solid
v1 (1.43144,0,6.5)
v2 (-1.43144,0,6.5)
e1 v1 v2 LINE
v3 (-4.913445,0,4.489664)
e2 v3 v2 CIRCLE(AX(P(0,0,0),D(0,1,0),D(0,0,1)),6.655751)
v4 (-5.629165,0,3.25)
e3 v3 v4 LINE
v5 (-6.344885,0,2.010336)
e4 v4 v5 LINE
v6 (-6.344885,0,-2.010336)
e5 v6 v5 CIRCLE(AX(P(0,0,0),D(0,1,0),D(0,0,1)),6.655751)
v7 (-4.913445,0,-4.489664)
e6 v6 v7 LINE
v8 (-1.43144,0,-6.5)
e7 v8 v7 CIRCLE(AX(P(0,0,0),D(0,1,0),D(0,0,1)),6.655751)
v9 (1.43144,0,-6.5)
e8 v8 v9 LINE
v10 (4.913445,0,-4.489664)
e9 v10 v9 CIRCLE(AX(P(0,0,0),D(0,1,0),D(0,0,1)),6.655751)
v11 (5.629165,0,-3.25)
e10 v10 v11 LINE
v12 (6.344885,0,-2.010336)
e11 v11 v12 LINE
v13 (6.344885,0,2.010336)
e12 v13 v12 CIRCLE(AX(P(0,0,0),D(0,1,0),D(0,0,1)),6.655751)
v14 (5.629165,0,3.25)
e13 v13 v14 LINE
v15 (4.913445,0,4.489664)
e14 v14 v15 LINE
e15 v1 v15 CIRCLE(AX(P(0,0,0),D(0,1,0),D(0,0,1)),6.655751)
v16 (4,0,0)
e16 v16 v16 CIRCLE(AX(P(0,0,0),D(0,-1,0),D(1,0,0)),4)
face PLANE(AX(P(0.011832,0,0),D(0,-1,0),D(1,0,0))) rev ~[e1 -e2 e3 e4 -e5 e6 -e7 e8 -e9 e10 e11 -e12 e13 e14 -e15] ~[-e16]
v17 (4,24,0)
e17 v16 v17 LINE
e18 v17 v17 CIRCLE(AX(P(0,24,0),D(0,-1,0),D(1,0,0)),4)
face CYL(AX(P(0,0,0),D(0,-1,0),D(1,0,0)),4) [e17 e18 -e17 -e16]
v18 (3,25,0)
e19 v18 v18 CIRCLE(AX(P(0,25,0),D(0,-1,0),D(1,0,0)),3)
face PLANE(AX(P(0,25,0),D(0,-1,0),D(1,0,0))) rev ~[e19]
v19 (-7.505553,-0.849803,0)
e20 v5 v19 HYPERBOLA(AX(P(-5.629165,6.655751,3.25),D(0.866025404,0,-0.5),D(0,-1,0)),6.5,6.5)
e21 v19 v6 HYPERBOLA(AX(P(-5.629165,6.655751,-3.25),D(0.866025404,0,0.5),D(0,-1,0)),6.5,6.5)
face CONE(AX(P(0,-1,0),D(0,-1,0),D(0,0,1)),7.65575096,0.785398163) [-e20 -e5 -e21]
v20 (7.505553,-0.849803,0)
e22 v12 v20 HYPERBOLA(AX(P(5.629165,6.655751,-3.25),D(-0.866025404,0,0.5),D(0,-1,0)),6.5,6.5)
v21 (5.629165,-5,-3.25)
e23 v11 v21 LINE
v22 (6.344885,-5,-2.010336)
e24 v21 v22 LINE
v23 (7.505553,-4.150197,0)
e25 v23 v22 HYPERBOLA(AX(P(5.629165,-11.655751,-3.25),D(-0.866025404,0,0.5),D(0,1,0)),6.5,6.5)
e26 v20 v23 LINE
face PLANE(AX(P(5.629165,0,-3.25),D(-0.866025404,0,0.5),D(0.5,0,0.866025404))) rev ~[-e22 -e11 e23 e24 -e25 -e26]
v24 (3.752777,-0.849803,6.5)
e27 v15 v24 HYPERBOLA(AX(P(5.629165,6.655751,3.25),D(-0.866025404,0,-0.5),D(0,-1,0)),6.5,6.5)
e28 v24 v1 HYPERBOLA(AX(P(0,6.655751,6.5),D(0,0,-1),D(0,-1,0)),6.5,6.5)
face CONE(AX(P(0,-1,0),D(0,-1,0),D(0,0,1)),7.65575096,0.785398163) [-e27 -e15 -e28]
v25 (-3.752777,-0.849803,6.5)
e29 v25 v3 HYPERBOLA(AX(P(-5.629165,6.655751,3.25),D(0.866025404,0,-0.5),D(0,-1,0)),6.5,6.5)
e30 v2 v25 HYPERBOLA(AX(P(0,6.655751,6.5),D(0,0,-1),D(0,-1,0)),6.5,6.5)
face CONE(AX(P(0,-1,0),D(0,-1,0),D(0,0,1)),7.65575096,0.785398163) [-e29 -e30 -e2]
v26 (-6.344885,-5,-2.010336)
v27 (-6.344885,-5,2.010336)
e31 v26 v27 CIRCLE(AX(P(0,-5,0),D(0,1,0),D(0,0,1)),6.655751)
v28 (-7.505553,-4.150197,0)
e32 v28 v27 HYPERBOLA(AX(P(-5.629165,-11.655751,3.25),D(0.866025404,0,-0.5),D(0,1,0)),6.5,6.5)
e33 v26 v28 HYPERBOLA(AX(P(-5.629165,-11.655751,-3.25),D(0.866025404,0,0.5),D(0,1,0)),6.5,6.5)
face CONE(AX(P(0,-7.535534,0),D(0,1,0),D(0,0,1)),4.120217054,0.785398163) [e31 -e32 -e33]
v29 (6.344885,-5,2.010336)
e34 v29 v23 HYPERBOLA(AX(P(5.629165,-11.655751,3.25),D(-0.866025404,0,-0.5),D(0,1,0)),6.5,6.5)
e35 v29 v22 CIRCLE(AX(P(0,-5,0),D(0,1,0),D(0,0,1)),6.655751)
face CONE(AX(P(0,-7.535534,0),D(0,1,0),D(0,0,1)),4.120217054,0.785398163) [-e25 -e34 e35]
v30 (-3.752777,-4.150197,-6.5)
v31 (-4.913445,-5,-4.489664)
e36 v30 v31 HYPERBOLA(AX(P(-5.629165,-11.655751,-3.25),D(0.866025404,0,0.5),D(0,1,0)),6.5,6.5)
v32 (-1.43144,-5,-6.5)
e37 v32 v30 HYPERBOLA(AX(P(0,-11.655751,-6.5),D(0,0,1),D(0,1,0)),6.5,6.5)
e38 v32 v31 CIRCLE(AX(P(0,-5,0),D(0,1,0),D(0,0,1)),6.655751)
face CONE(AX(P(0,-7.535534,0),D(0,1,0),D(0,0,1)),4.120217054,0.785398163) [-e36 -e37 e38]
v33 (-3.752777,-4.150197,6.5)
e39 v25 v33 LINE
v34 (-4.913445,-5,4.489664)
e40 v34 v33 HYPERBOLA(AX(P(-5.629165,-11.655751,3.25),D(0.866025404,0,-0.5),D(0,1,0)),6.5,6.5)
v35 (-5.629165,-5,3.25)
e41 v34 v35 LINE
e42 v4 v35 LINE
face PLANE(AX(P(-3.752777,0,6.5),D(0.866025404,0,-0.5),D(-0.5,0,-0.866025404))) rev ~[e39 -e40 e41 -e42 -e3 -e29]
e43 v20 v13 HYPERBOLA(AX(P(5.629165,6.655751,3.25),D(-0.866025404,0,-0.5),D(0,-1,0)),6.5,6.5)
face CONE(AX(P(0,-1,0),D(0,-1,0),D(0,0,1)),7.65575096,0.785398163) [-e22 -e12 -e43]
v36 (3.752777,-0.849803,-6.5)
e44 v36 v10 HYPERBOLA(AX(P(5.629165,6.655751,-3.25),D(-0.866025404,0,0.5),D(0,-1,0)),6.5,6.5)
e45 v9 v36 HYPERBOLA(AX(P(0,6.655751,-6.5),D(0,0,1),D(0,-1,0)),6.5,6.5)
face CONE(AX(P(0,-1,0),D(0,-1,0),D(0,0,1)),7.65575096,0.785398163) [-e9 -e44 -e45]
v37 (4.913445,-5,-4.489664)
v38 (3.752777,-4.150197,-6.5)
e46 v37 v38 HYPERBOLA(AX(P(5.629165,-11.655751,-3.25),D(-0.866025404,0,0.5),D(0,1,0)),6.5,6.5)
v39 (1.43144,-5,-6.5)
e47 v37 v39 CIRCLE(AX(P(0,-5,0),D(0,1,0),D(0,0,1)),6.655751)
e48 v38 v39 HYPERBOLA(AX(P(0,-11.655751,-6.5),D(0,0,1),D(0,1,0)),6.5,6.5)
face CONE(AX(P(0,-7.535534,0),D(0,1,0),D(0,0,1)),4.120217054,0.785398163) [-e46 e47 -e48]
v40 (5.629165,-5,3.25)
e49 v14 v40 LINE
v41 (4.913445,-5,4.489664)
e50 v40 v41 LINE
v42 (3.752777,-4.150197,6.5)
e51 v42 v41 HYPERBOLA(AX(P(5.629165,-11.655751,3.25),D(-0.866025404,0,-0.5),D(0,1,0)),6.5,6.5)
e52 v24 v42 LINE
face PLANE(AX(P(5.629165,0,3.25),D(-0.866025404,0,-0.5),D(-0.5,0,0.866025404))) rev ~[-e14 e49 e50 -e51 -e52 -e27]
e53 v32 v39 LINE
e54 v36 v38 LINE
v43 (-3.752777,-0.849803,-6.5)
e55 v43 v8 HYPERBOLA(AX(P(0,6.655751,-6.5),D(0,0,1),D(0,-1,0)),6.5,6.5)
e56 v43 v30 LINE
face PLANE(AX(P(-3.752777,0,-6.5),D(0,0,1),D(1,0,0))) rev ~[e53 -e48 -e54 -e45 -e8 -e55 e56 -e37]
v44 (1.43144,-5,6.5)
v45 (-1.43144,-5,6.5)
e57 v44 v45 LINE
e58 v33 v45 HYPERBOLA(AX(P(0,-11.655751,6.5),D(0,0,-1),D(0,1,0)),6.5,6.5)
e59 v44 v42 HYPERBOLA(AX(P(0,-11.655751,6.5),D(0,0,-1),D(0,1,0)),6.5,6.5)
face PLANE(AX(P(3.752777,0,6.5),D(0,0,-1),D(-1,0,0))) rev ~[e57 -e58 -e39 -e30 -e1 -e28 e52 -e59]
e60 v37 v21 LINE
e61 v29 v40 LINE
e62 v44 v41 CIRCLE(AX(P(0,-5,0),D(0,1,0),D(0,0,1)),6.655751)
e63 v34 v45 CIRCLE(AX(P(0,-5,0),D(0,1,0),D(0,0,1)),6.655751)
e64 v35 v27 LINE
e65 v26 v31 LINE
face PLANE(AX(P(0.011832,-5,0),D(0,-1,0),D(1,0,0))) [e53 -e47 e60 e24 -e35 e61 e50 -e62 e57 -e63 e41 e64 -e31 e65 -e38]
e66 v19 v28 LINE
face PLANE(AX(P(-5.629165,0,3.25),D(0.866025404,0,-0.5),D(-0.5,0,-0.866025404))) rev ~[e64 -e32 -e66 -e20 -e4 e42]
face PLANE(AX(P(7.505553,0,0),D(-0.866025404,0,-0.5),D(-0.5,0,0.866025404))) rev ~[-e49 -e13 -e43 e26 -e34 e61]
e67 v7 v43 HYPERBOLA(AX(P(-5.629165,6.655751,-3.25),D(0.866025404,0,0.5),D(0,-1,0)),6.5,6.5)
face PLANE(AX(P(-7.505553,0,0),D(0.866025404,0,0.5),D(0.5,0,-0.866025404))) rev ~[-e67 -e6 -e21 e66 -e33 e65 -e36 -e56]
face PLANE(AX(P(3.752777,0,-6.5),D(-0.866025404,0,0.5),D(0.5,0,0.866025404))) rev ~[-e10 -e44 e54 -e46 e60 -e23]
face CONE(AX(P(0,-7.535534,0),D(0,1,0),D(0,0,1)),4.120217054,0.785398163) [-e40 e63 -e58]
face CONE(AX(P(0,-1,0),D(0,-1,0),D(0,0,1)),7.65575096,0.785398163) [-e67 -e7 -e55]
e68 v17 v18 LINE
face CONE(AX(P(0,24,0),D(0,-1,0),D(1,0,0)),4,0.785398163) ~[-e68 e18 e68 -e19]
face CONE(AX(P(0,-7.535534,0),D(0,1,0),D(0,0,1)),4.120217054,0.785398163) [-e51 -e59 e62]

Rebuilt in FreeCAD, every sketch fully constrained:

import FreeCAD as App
import Part
import Sketcher

V = App.Vector
Q = App.Units.Quantity


def edges_at(feature, points):
    """Names of the edges that pass closest to the given points."""
    edges = feature.Shape.Edges
    near = lambda p: min(range(len(edges)), key=lambda i: edges[i].distToShape(Part.Vertex(*p))[0])
    return sorted({f"Edge{near(p) + 1}" for p in points})

doc = App.newDocument("Part")
params = doc.addObject("Spreadsheet::Sheet", "Params")
for row, (alias, value) in enumerate([
    ("pad1_length", "5 mm"),
    ("sketch2_diameter", "8 mm"),
    ("pad2_length", "25 mm"),
    ("chamfer_size", "1 mm"),
    ("sketch3_width", "3 mm"),
    ("sketch3_length", "5 mm"),
    ("groove_angle", "360 deg"),
], start=1):
    params.set(f"A{row}", alias)
    params.set(f"B{row}", "=" + value)
    params.setAlias(f"B{row}", alias)

body = doc.addObject("PartDesign::Body", "Body")

# Sketch on XZ plane
sketch1 = body.newObject("Sketcher::SketchObject", "Sketch")
sketch1.AttachmentSupport = (doc.getObject("XZ_Plane"), [""])
sketch1.MapMode = "FlatFace"
sketch1.addGeometry(Part.LineSegment(V(3.8, -6.5, 0), V(5.6, -3.3, 0)), False)
sketch1.addGeometry(Part.LineSegment(V(5.6, -3.3, 0), V(7.5, 0, 0)), False)
sketch1.addGeometry(Part.LineSegment(V(7.5, 0, 0), V(5.6, 3.2, 0)), False)
sketch1.addGeometry(Part.LineSegment(V(5.6, 3.2, 0), V(3.8, 6.5, 0)), False)
sketch1.addGeometry(Part.LineSegment(V(3.8, 6.5, 0), V(-3.8, 6.5, 0)), False)
sketch1.addGeometry(Part.LineSegment(V(-3.8, 6.5, 0), V(-5.6, 3.3, 0)), False)
sketch1.addGeometry(Part.LineSegment(V(-5.6, 3.3, 0), V(-7.5, 0, 0)), False)
sketch1.addGeometry(Part.LineSegment(V(-7.5, 0, 0), V(-3.8, -6.5, 0)), False)
sketch1.addGeometry(Part.LineSegment(V(-3.8, -6.5, 0), V(3.8, -6.5, 0)), False)
sketch1.addConstraint(Sketcher.Constraint("Coincident", 0, 2, 1, 1))
sketch1.addConstraint(Sketcher.Constraint("Coincident", 1, 2, 2, 1))
sketch1.addConstraint(Sketcher.Constraint("Coincident", 2, 2, 3, 1))
sketch1.addConstraint(Sketcher.Constraint("Coincident", 3, 2, 4, 1))
sketch1.addConstraint(Sketcher.Constraint("Coincident", 4, 2, 5, 1))
sketch1.addConstraint(Sketcher.Constraint("Coincident", 5, 2, 6, 1))
sketch1.addConstraint(Sketcher.Constraint("Coincident", 6, 2, 7, 1))
sketch1.addConstraint(Sketcher.Constraint("Coincident", 7, 2, 8, 1))
sketch1.addConstraint(Sketcher.Constraint("Coincident", 8, 2, 0, 1))
sketch1.addConstraint(Sketcher.Constraint("Horizontal", 4))
sketch1.addConstraint(Sketcher.Constraint("Horizontal", 8))
sketch1.addConstraint(Sketcher.Constraint("Symmetric", 0, 2, 5, 2, -1, 1))
sketch1.addConstraint(Sketcher.Constraint("Symmetric", 1, 2, 6, 2, -1, 1))
sketch1.addConstraint(Sketcher.Constraint("Symmetric", 3, 2, 7, 2, -1, 1))
sketch1.addConstraint(Sketcher.Constraint("Symmetric", 2, 2, 5, 2, -2))
sketch1.addConstraint(Sketcher.Constraint("PointOnObject", 1, 2, -1))
sketch1.addConstraint(Sketcher.Constraint("Parallel", 0, 1))
sketch1.addConstraint(Sketcher.Constraint("Parallel", 2, 3))
sketch1.addConstraint(Sketcher.Constraint("Parallel", 1, 5))
sketch1.addConstraint(Sketcher.Constraint("Equal", 0, 1))
sketch1.addConstraint(Sketcher.Constraint("Angle", 0, Q("60 deg")))
sketch1.addConstraint(Sketcher.Constraint("DistanceY", 7, 2, 4, 2, 13.0))
sketch1.addConstraint(Sketcher.Constraint("DistanceX", 4, 2, 4, 1, 7.505554))
pad1 = body.newObject("PartDesign::Pad", "Pad")
pad1.Profile = sketch1
pad1.setExpression("Length", "Params.pad1_length")

# Sketch on XZ plane
sketch2 = body.newObject("Sketcher::SketchObject", "Sketch001")
sketch2.AttachmentSupport = (doc.getObject("XZ_Plane"), [""])
sketch2.MapMode = "FlatFace"
sketch2.addGeometry(Part.Circle(V(0, 0, 0), V(0, 0, 1), 4), False)
sketch2.addConstraint(Sketcher.Constraint("Coincident", 0, 3, -1, 1))
sketch2.addConstraint(Sketcher.Constraint("Diameter", 0, 8.0))
sketch2.setExpression("Constraints[1]", "Params.sketch2_diameter")
pad2 = body.newObject("PartDesign::Pad", "Pad001")
pad2.Profile = sketch2
pad2.setExpression("Length", "Params.pad2_length")
pad2.Reversed = True
doc.recompute()

chamfer = body.newObject("PartDesign::Chamfer", "Chamfer")
chamfer.Base = (pad2, edges_at(pad2, [(-4, 25, 0)]))
chamfer.setExpression("Size", "Params.chamfer_size")

# Sketch on YZ plane
sketch3 = body.newObject("Sketcher::SketchObject", "Sketch002")
sketch3.AttachmentSupport = (doc.getObject("YZ_Plane"), [""])
sketch3.MapMode = "FlatFace"
sketch3.addGeometry(Part.LineSegment(V(-7.5, 9.5, 0), V(-7.5, 4.1, 0)), False)
sketch3.addGeometry(Part.LineSegment(V(-7.5, 4.1, 0), V(-4, 7.7, 0)), False)
sketch3.addGeometry(Part.LineSegment(V(-4, 7.7, 0), V(-1, 7.7, 0)), False)
sketch3.addGeometry(Part.LineSegment(V(-1, 7.7, 0), V(2.5, 4.1, 0)), False)
sketch3.addGeometry(Part.LineSegment(V(2.5, 4.1, 0), V(2.5, 9.5, 0)), False)
sketch3.addGeometry(Part.LineSegment(V(2.5, 9.5, 0), V(-7.5, 9.5, 0)), False)
sketch3.addConstraint(Sketcher.Constraint("Coincident", 0, 2, 1, 1))
sketch3.addConstraint(Sketcher.Constraint("Coincident", 1, 2, 2, 1))
sketch3.addConstraint(Sketcher.Constraint("Coincident", 2, 2, 3, 1))
sketch3.addConstraint(Sketcher.Constraint("Coincident", 3, 2, 4, 1))
sketch3.addConstraint(Sketcher.Constraint("Coincident", 4, 2, 5, 1))
sketch3.addConstraint(Sketcher.Constraint("Coincident", 5, 2, 0, 1))
sketch3.addConstraint(Sketcher.Constraint("Vertical", 0))
sketch3.addConstraint(Sketcher.Constraint("Horizontal", 2))
sketch3.addConstraint(Sketcher.Constraint("Horizontal", 5))
sketch3.addConstraint(Sketcher.Constraint("Perpendicular", 1, 3))
sketch3.addConstraint(Sketcher.Constraint("Horizontal", 0, 2, 3, 2))
sketch3.addConstraint(Sketcher.Constraint("Equal", 1, 3))
sketch3.addConstraint(Sketcher.Constraint("DistanceX", 2, 1, 2, 2, 3.0))
sketch3.addConstraint(Sketcher.Constraint("Distance", 1, 5.0))
sketch3.addConstraint(Sketcher.Constraint("DistanceX", 1, 2, -1, 1, 4.0))
sketch3.addConstraint(Sketcher.Constraint("DistanceY", 0, 2, 0, 1, 5.400099))
sketch3.addConstraint(Sketcher.Constraint("DistanceX", 5, 2, 5, 1, 10.073442))
sketch3.addConstraint(Sketcher.Constraint("DistanceY", -1, 1, 1, 2, 7.655751))
sketch3.setExpression("Constraints[12]", "Params.sketch3_width")
sketch3.setExpression("Constraints[13]", "Params.sketch3_length")
groove = body.newObject("PartDesign::Groove", "Groove")
groove.Profile = sketch3
groove.ReferenceAxis = (sketch3, ["H_Axis"])
groove.setExpression("Angle", "Params.groove_angle")

doc.recompute()
